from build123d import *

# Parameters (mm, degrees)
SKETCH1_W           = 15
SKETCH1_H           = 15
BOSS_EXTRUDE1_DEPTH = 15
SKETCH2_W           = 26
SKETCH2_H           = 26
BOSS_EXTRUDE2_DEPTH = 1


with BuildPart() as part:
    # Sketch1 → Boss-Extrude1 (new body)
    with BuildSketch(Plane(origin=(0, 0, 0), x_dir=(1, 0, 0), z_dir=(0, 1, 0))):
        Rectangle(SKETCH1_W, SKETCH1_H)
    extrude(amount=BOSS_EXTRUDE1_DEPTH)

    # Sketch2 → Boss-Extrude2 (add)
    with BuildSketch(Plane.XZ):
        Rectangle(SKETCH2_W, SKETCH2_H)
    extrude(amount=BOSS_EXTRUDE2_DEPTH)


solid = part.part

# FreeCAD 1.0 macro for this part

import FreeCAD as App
import Part
import Sketcher
from FreeCAD import Vector


def add_polygon(sketch, points):
    """Adds a closed chain of lines whose ends are joined by coincident constraints."""
    first, n = sketch.GeometryCount, len(points)
    for a, b in zip(points, points[1:] + points[:1]):
        sketch.addGeometry(Part.LineSegment(App.Vector(*a, 0), App.Vector(*b, 0)), False)
    for i in range(n):
        sketch.addConstraint(Sketcher.Constraint("Coincident", first + i, 2, first + (i + 1) % n, 1))

doc = App.newDocument("Part")
body = doc.addObject("PartDesign::Body", "Body")

sketch1 = body.newObject("Sketcher::SketchObject", "Sketch")
sketch1.AttachmentSupport = (doc.getObject("XZ_Plane"), [""])
sketch1.MapMode = "FlatFace"
add_polygon(sketch1, [(-8, -8), (-8, 8), (8, 8), (8, -8)])
sketch1.addConstraint([
    Sketcher.Constraint("Vertical", 0),
    Sketcher.Constraint("Horizontal", 1),
    Sketcher.Constraint("Vertical", 2),
    Sketcher.Constraint("Horizontal", 3),
    Sketcher.Constraint("Symmetric", 0, 2, 2, 2, -1, 1),
    Sketcher.Constraint("Equal", 3, 0),
    Sketcher.Constraint("DistanceX", 1, 1, 1, 2, 15.0),
])
pad1 = body.newObject("PartDesign::Pad", "Pad")
pad1.Profile = sketch1
pad1.Length = 15
pad1.Reversed = True

sketch2 = body.newObject("Sketcher::SketchObject", "Sketch001")
sketch2.AttachmentSupport = (doc.getObject("XZ_Plane"), [""])
sketch2.MapMode = "FlatFace"
add_polygon(sketch2, [(-13, 13), (-13, -13), (13, -13), (13, 13)])
sketch2.addConstraint([
    Sketcher.Constraint("Vertical", 0),
    Sketcher.Constraint("Horizontal", 1),
    Sketcher.Constraint("Vertical", 2),
    Sketcher.Constraint("Horizontal", 3),
    Sketcher.Constraint("Symmetric", 0, 2, 2, 2, -1, 1),
    Sketcher.Constraint("Equal", 3, 0),
    Sketcher.Constraint("DistanceX", 1, 1, 1, 2, 26.0),
])
pad2 = body.newObject("PartDesign::Pad", "Pad001")
pad2.Profile = sketch2
pad2.Length = 1

doc.recompute()
